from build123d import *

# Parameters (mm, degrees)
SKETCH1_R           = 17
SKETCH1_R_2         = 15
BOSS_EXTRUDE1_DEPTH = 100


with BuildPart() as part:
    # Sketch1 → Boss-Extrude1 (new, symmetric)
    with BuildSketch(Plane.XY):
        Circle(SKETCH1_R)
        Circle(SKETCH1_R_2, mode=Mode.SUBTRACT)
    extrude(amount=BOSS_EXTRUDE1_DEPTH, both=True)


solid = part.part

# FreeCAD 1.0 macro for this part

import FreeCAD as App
import Part
import Sketcher
Q = App.Units.Quantity

doc = App.newDocument("Part")
params = doc.addObject("Spreadsheet::Sheet", "Params")
for row, (alias, value) in enumerate([
    ("sketch1_diameter", "34 mm"),
    ("sketch1_diameter2", "30 mm"),
    ("pad1_length", "200 mm"),
], start=1):
    params.set(f"A{row}", alias)
    params.set(f"B{row}", "=" + value)
    params.setAlias(f"B{row}", alias)

body = doc.addObject("PartDesign::Body", "Body")

# Sketch on XY plane
sketch1 = body.newObject("Sketcher::SketchObject", "Sketch")
sketch1.AttachmentSupport = (doc.getObject("XY_Plane"), [""])
sketch1.MapMode = "FlatFace"
sketch1.addGeometry(Part.Circle(App.Vector(0, 0, 0), App.Vector(0, 0, 1), 17), False)
sketch1.addGeometry(Part.Circle(App.Vector(0, 0, 0), App.Vector(0, 0, 1), 15), False)
sketch1.addConstraint(Sketcher.Constraint("Coincident", 0, 3, -1, 1))
sketch1.addConstraint(Sketcher.Constraint("Coincident", 1, 3, -1, 1))
sketch1.addConstraint(Sketcher.Constraint("Diameter", 0, Q("34 mm")))
sketch1.addConstraint(Sketcher.Constraint("Diameter", 1, Q("30 mm")))
sketch1.setExpression("Constraints[2]", "Params.sketch1_diameter")
sketch1.setExpression("Constraints[3]", "Params.sketch1_diameter2")
pad1 = body.newObject("PartDesign::Pad", "Pad")
pad1.Profile = sketch1
pad1.setExpression("Length", "Params.pad1_length")
pad1.Midplane = True

doc.recompute()
